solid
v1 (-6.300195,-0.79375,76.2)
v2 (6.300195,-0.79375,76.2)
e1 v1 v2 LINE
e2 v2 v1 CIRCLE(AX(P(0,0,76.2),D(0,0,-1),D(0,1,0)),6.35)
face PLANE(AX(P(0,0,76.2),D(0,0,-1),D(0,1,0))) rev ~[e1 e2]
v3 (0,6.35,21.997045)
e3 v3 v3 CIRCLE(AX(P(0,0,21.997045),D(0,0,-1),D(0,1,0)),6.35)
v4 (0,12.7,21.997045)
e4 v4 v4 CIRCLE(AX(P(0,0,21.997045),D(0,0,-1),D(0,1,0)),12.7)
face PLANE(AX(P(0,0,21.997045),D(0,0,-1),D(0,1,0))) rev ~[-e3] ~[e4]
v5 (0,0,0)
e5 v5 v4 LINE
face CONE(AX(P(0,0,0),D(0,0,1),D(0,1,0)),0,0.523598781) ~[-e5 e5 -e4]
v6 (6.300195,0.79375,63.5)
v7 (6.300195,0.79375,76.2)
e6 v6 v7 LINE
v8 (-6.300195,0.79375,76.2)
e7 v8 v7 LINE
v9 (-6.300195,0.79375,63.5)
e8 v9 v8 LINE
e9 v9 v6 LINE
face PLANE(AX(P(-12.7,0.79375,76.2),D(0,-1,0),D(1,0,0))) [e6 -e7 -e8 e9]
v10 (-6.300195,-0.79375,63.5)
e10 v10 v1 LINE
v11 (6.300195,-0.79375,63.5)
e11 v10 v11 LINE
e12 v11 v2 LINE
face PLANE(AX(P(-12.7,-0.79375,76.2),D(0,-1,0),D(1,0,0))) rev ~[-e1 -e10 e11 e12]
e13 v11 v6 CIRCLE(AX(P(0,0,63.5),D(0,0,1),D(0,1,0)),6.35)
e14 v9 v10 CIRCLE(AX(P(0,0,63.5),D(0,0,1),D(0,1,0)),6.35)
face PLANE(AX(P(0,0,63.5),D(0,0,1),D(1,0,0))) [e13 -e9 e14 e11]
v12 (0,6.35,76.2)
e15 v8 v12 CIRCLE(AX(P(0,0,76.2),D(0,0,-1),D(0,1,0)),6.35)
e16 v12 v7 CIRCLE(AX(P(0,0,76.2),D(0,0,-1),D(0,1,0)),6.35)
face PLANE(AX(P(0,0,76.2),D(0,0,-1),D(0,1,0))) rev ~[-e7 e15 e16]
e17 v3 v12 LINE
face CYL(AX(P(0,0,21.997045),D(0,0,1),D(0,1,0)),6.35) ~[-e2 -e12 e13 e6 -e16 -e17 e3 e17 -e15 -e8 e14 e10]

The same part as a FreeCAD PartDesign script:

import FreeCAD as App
import Part
import Sketcher

V = App.Vector
Q = App.Units.Quantity


def add_polygon(sketch, points):
    """Adds a closed chain of lines whose ends are joined by coincident constraints."""
    first, n = sketch.GeometryCount, len(points)
    for a, b in zip(points, points[1:] + points[:1]):
        sketch.addGeometry(Part.LineSegment(App.Vector(*a, 0), App.Vector(*b, 0)), False)
    for i in range(n):
        sketch.addConstraint(Sketcher.Constraint("Coincident", first + i, 2, first + (i + 1) % n, 1))

doc = App.newDocument("Part")
params = doc.addObject("Spreadsheet::Sheet", "Params")
for row, (alias, value) in enumerate([
    ("sketch1_height", "3 in"),
    ("sketch1_length", "1 in"),
    ("revolution_angle", "360 deg"),
    ("sketch2_width", "1 in"),
    ("sketch2_height", "0.0625 in"),
    ("pocket1_length", "0.5 in"),
], start=1):
    params.set(f"A{row}", alias)
    params.set(f"B{row}", "=" + value)
    params.setAlias(f"B{row}", alias)

body = doc.addObject("PartDesign::Body", "Body")

sketch1 = body.newObject("Sketcher::SketchObject", "Sketch")
sketch1.AttachmentSupport = (doc.getObject("YZ_Plane"), [""])
sketch1.MapMode = "FlatFace"
add_polygon(sketch1, [(6, 76), (0, 76), (0, 0), (13, 22), (6, 22)])
sketch1.addConstraint(Sketcher.Constraint("Horizontal", 0))
sketch1.addConstraint(Sketcher.Constraint("Vertical", 1))
sketch1.addConstraint(Sketcher.Constraint("Horizontal", 3))
sketch1.addConstraint(Sketcher.Constraint("Vertical", 4))
sketch1.addConstraint(Sketcher.Constraint("Coincident", 1, 2, -1, 1))
sketch1.addConstraint(Sketcher.Constraint("Equal", 0, 3))
sketch1.addConstraint(Sketcher.Constraint("DistanceY", 1, 2, 1, 1, Q("3 in")))
sketch1.addConstraint(Sketcher.Constraint("Distance", 2, Q("1 in")))
sketch1.addConstraint(Sketcher.Constraint("Angle", 2, Q("60 deg")))
sketch1.setExpression("Constraints[11]", "Params.sketch1_height")
sketch1.setExpression("Constraints[12]", "Params.sketch1_length")
revolution = body.newObject("PartDesign::Revolution", "Revolution")
revolution.Profile = sketch1
revolution.ReferenceAxis = (sketch1, ["V_Axis"])
revolution.setExpression("Angle", "Params.revolution_angle")

sketch2 = body.newObject("Sketcher::SketchObject", "Sketch001")
sketch2.AttachmentSupport = (doc.getObject("XY_Plane"), [""])
sketch2.MapMode = "FlatFace"
sketch2.AttachmentOffset = App.Placement(V(0, 0, 3 * 25.4), App.Rotation())
add_polygon(sketch2, [(-12.7, 0.8), (-12.7, -0.8), (12.7, -0.8), (12.7, 0.8)])
sketch2.addConstraint(Sketcher.Constraint("Vertical", 0))
sketch2.addConstraint(Sketcher.Constraint("Horizontal", 1))
sketch2.addConstraint(Sketcher.Constraint("Vertical", 2))
sketch2.addConstraint(Sketcher.Constraint("Horizontal", 3))
sketch2.addConstraint(Sketcher.Constraint("Symmetric", 0, 2, 2, 2, -1, 1))
sketch2.addConstraint(Sketcher.Constraint("DistanceX", 1, 1, 1, 2, Q("1 in")))
sketch2.addConstraint(Sketcher.Constraint("DistanceY", 0, 2, 0, 1, Q("0.0625 in")))
sketch2.setExpression("Constraints[9]", "Params.sketch2_width")
sketch2.setExpression("Constraints[10]", "Params.sketch2_height")
pocket1 = body.newObject("PartDesign::Pocket", "Pocket")
pocket1.Profile = sketch2
pocket1.setExpression("Length", "Params.pocket1_length")

doc.recompute()
